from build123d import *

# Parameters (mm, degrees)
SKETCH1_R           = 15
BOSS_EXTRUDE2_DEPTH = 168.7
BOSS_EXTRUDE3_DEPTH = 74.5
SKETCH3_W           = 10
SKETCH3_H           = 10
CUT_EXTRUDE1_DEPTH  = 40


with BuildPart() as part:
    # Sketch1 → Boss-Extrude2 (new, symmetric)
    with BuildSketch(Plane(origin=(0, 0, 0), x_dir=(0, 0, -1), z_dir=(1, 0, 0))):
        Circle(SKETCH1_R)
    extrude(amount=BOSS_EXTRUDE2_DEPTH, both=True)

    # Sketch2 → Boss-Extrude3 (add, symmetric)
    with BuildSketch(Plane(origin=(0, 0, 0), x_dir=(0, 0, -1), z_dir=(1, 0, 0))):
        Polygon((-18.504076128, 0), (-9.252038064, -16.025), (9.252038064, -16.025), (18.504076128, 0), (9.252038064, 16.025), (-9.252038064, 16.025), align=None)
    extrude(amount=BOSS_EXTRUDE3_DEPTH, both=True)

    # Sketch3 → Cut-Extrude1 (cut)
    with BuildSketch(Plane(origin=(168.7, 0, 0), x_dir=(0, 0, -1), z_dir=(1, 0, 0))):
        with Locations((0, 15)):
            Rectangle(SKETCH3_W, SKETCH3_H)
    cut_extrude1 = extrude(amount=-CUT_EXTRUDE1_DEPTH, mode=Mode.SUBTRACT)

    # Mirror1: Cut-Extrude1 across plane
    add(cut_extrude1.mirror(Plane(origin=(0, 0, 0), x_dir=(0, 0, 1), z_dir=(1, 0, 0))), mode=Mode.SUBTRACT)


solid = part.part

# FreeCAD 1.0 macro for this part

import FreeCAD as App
import Part
import Sketcher

V = App.Vector
Q = App.Units.Quantity

doc = App.newDocument("Part")
body = doc.addObject("PartDesign::Body", "Body")

# Sketch on YZ plane
sketch1 = body.newObject("Sketcher::SketchObject", "Sketch")
sketch1.AttachmentSupport = (doc.getObject("YZ_Plane"), [""])
sketch1.MapMode = "FlatFace"
sketch1.addGeometry(Part.Circle(V(0, 0, 0), V(0, 0, 1), 15), False)
sketch1.addConstraint([
    Sketcher.Constraint("Coincident", 0, 3, -1, 1),
    Sketcher.Constraint("Diameter", 0, Q("30 mm")),
])
pad1 = body.newObject("PartDesign::Pad", "Pad")
pad1.Profile = sketch1
pad1.Length = 337.4
pad1.Midplane = True

# Sketch on YZ plane
sketch2 = body.newObject("Sketcher::SketchObject", "Sketch001")
sketch2.AttachmentSupport = (doc.getObject("YZ_Plane"), [""])
sketch2.MapMode = "FlatFace"
sketch2.addGeometry([
    Part.LineSegment(V(0, 19, 0), V(-16, 9, 0)),  # 0
    Part.LineSegment(V(-16, 9, 0), V(-16, -9, 0)),  # 1
    Part.LineSegment(V(-16, -9, 0), V(0, -19, 0)),  # 2
    Part.LineSegment(V(0, -19, 0), V(16, -9, 0)),  # 3
    Part.LineSegment(V(16, -9, 0), V(16, 9, 0)),  # 4
    Part.LineSegment(V(16, 9, 0), V(0, 19, 0)),  # 5
], False)
sketch2.addConstraint([
    Sketcher.Constraint("Coincident", 0, 2, 1, 1),
    Sketcher.Constraint("Coincident", 1, 2, 2, 1),
    Sketcher.Constraint("Coincident", 2, 2, 3, 1),
    Sketcher.Constraint("Coincident", 3, 2, 4, 1),
    Sketcher.Constraint("Coincident", 4, 2, 5, 1),
    Sketcher.Constraint("Coincident", 5, 2, 0, 1),
    Sketcher.Constraint("Vertical", 1),
    Sketcher.Constraint("Vertical", 4),
    Sketcher.Constraint("Symmetric", 0, 2, 3, 2, -1, 1),
    Sketcher.Constraint("Symmetric", 2, 2, 5, 2, -1, 1),
    Sketcher.Constraint("PointOnObject", 2, 2, -2),
    Sketcher.Constraint("Parallel", 2, 5),
    Sketcher.Constraint("Horizontal", 1, 2, 3, 2),
    Sketcher.Constraint("Angle", 0, Q("-150 deg")),
    Sketcher.Constraint("DistanceX", 1, 2, 3, 2, Q("32.05 mm")),
    Sketcher.Constraint("DistanceY", 1, 2, 1, 1, Q("18.504076 mm")),
])
pad2 = body.newObject("PartDesign::Pad", "Pad001")
pad2.Profile = sketch2
pad2.Length = 149
pad2.Midplane = True

# Sketch on YZ plane
sketch3 = body.newObject("Sketcher::SketchObject", "Sketch002")
sketch3.AttachmentSupport = (doc.getObject("YZ_Plane"), [""])
sketch3.MapMode = "FlatFace"
sketch3.AttachmentOffset = App.Placement(V(0, 0, 168.7), App.Rotation())
sketch3.addGeometry([
    Part.LineSegment(V(20, 5, 0), V(10, 5, 0)),
    Part.LineSegment(V(10, 5, 0), V(10, -5, 0)),
    Part.LineSegment(V(10, -5, 0), V(20, -5, 0)),
    Part.LineSegment(V(20, -5, 0), V(20, 5, 0)),
], False)
sketch3.addConstraint([
    Sketcher.Constraint("Coincident", 0, 2, 1, 1),
    Sketcher.Constraint("Coincident", 1, 2, 2, 1),
    Sketcher.Constraint("Coincident", 2, 2, 3, 1),
    Sketcher.Constraint("Coincident", 3, 2, 0, 1),
    Sketcher.Constraint("Horizontal", 0),
    Sketcher.Constraint("Vertical", 1),
    Sketcher.Constraint("Horizontal", 2),
    Sketcher.Constraint("Vertical", 3),
    Sketcher.Constraint("Equal", 2, 1),
    Sketcher.Constraint("DistanceX", 0, 2, 0, 1, Q("10 mm")),
    Sketcher.Constraint("DistanceX", -1, 1, 0, 2, Q("10 mm")),
    Sketcher.Constraint("DistanceY", -1, 1, 0, 2, Q("5 mm")),
])
pocket1 = body.newObject("PartDesign::Pocket", "Pocket")
pocket1.Profile = sketch3
pocket1.Length = 40
doc.recompute()

mirrored = body.newObject("PartDesign::Mirrored", "Mirrored")
mirrored.Originals = [pocket1]
mirrored.MirrorPlane = (doc.getObject("YZ_Plane"), [""])
body.Tip = mirrored

doc.recompute()
